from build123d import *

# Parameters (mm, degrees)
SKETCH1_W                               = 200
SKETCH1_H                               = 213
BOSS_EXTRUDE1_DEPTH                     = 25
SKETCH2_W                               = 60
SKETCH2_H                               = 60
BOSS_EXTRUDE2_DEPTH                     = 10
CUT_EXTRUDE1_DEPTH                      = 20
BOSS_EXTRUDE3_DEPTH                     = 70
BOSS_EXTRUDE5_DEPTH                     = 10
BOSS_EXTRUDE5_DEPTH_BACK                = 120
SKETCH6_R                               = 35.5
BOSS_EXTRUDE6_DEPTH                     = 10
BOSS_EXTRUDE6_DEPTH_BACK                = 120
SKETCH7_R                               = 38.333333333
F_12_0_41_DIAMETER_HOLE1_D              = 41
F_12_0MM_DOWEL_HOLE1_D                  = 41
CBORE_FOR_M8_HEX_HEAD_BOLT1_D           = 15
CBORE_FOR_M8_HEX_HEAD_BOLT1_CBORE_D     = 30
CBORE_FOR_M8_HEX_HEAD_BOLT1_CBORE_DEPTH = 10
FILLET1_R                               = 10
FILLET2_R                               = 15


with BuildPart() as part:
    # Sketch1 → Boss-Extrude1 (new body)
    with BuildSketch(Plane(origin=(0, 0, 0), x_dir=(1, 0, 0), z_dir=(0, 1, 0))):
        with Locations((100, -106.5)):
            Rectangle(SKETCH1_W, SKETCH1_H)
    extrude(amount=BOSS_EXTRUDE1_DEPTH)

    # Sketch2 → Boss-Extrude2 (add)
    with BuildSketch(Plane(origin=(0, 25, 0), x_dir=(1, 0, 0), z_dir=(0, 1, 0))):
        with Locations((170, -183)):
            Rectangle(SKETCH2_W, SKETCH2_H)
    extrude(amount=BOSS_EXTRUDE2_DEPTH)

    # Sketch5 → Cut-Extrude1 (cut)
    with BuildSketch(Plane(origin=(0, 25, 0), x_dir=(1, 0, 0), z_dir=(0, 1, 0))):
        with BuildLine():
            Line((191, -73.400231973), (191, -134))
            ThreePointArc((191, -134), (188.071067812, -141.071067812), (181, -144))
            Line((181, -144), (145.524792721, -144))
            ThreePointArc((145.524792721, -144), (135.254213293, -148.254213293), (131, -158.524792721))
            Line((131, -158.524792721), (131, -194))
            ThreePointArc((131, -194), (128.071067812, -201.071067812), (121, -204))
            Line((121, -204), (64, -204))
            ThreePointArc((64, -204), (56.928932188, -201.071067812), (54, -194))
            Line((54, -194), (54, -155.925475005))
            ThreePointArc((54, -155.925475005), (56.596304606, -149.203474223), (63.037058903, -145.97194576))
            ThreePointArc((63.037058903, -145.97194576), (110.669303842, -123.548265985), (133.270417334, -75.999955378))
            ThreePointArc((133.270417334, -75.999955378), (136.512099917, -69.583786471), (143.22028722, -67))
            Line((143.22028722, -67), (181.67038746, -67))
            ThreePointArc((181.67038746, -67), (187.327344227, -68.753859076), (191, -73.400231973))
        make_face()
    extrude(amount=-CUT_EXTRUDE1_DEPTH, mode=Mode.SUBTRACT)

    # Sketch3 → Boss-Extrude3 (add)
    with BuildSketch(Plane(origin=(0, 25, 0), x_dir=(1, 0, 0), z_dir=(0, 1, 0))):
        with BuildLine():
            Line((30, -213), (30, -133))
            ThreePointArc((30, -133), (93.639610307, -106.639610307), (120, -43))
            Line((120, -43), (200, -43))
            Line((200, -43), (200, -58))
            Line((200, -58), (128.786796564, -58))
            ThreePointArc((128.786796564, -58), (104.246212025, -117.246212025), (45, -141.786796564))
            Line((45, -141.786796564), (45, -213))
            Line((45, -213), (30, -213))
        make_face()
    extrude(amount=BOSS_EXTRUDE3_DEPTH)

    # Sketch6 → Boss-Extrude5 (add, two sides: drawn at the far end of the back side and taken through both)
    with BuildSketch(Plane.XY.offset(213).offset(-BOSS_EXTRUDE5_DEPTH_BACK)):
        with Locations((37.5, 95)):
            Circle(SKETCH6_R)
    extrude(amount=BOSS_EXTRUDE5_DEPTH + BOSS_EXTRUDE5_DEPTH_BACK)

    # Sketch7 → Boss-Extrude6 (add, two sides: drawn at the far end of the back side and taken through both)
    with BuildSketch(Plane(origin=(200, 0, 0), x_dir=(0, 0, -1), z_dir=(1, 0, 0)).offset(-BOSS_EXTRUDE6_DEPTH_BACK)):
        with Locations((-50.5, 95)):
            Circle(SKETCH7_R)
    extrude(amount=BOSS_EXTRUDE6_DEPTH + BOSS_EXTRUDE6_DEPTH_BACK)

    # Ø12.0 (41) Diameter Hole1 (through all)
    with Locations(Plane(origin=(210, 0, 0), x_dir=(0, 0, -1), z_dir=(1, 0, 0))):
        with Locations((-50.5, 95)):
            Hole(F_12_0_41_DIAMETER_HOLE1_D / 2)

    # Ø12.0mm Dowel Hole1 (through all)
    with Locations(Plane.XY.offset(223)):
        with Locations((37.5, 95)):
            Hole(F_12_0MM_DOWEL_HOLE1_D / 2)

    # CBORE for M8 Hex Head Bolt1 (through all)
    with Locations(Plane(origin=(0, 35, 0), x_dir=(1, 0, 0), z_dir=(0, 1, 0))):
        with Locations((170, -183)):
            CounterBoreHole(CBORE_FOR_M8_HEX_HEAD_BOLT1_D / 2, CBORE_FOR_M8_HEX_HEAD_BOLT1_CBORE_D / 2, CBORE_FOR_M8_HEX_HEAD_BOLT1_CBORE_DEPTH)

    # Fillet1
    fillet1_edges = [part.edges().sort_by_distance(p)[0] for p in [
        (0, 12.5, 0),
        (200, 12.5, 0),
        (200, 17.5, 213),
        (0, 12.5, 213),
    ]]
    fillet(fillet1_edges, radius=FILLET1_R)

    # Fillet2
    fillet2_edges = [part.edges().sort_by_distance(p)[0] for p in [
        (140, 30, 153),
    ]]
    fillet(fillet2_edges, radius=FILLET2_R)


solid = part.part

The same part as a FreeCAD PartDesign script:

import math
import FreeCAD as App
import Part
import Sketcher
from FreeCAD import Vector


def edges_at(feature, points):
    """Names of the edges that pass closest to the given points."""
    edges = feature.Shape.Edges
    near = lambda p: min(range(len(edges)), key=lambda i: edges[i].distToShape(Part.Vertex(*p))[0])
    return sorted({f"Edge{near(p) + 1}" for p in points})


def add_polygon(sketch, points):
    """Adds a closed chain of lines whose ends are joined by coincident constraints."""
    first, n = sketch.GeometryCount, len(points)
    for a, b in zip(points, points[1:] + points[:1]):
        sketch.addGeometry(Part.LineSegment(App.Vector(*a, 0), App.Vector(*b, 0)), False)
    for i in range(n):
        sketch.addConstraint(Sketcher.Constraint("Coincident", first + i, 2, first + (i + 1) % n, 1))

doc = App.newDocument("Part")
body = doc.addObject("PartDesign::Body", "Body")

# Sketch on XZ plane
sketch1 = body.newObject("Sketcher::SketchObject", "Sketch")
sketch1.AttachmentSupport = (doc.getObject("XZ_Plane"), [""])
sketch1.MapMode = "FlatFace"
add_polygon(sketch1, [(0, 0), (0, 213), (200, 213), (200, 0)])  # lines 0-3
sketch1.addConstraint([
    Sketcher.Constraint("Vertical", 0),
    Sketcher.Constraint("Horizontal", 1),
    Sketcher.Constraint("Vertical", 2),
    Sketcher.Constraint("Horizontal", 3),
    Sketcher.Constraint("Coincident", 3, 2, -1, 1),
    Sketcher.Constraint("DistanceX", 1, 1, 1, 2, 200.0),
    Sketcher.Constraint("DistanceY", 0, 1, 0, 2, 213.0),
])
pad1 = body.newObject("PartDesign::Pad", "Pad")
pad1.Profile = sketch1
pad1.Length = 25
pad1.Reversed = True

# Sketch on XZ plane
sketch2 = body.newObject("Sketcher::SketchObject", "Sketch001")
sketch2.AttachmentSupport = (doc.getObject("XZ_Plane"), [""])
sketch2.MapMode = "FlatFace"
sketch2.AttachmentOffset = App.Placement(Vector(0, 0, -25), App.Rotation())
add_polygon(sketch2, [(140, 153), (140, 213), (200, 213), (200, 153)])  # lines 0-3
sketch2.addConstraint([
    Sketcher.Constraint("Vertical", 0),
    Sketcher.Constraint("Horizontal", 1),
    Sketcher.Constraint("Vertical", 2),
    Sketcher.Constraint("Horizontal", 3),
    Sketcher.Constraint("Equal", 3, 0),
    Sketcher.Constraint("DistanceX", 1, 1, 1, 2, 60.0),
    Sketcher.Constraint("DistanceX", -1, 1, 0, 2, 140.0),
    Sketcher.Constraint("DistanceY", -1, 1, 0, 2, 213.0),
])
pad2 = body.newObject("PartDesign::Pad", "Pad001")
pad2.Profile = sketch2
pad2.Length = 10
pad2.Reversed = True

# Sketch on XZ plane
sketch3 = body.newObject("Sketcher::SketchObject", "Sketch002")
sketch3.AttachmentSupport = (doc.getObject("XZ_Plane"), [""])
sketch3.MapMode = "FlatFace"
sketch3.AttachmentOffset = App.Placement(Vector(0, 0, -25), App.Rotation())
sketch3.addGeometry([
    Part.LineSegment(Vector(191, 134, 0), Vector(191, 73.400232, 0)),  # 0
    Part.ArcOfCircle(Part.Circle(Vector(181.670387, 77, 0), Vector(0, 0, 1), 10), math.radians(-90), math.radians(-21.098771)),  # 1
    Part.LineSegment(Vector(181.670387, 67, 0), Vector(143.220287, 67, 0)),  # 2
    Part.ArcOfCircle(Part.Circle(Vector(143.220287, 77, 0), Vector(0, 0, 1), 10), math.radians(-174.260573), math.radians(-90)),  # 3
    Part.ArcOfCircle(Part.Circle(Vector(55.51162, 68.18455, 0), Vector(0, 0, 1), 78.150567), math.radians(5.739427), math.radians(84.474192)),  # 4
    Part.ArcOfCircle(Part.Circle(Vector(64, 155.925475, 0), Vector(0, 0, 1), 10), math.radians(180), math.radians(264.474192)),  # 5
    Part.LineSegment(Vector(54, 155.925475, 0), Vector(54, 194, 0)),  # 6
    Part.ArcOfCircle(Part.Circle(Vector(64, 194, 0), Vector(0, 0, 1), 10), math.radians(90), math.radians(180)),  # 7
    Part.LineSegment(Vector(64, 204, 0), Vector(121, 204, 0)),  # 8
    Part.ArcOfCircle(Part.Circle(Vector(121, 194, 0), Vector(0, 0, 1), 10), math.radians(0), math.radians(90)),  # 9
    Part.LineSegment(Vector(131, 194, 0), Vector(131, 158.524793, 0)),  # 10
    Part.ArcOfCircle(Part.Circle(Vector(145.524793, 158.524793, 0), Vector(0, 0, 1), 14.524793), math.radians(-180), math.radians(-90)),  # 11
    Part.LineSegment(Vector(145.524793, 144, 0), Vector(181, 144, 0)),  # 12
    Part.ArcOfCircle(Part.Circle(Vector(181, 134, 0), Vector(0, 0, 1), 10), math.radians(0), math.radians(90)),  # 13
], False)
sketch3.addConstraint([
    Sketcher.Constraint("Coincident", 0, 2, 1, 2),
    Sketcher.Constraint("Tangent", 1, 1, 2, 1),
    Sketcher.Constraint("Tangent", 2, 2, 3, 2),
    Sketcher.Constraint("Tangent", 3, 1, 4, 1),
    Sketcher.Constraint("Tangent", 4, 2, 5, 2),
    Sketcher.Constraint("Tangent", 5, 1, 6, 1),
    Sketcher.Constraint("Tangent", 6, 2, 7, 2),
    Sketcher.Constraint("Tangent", 7, 1, 8, 1),
    Sketcher.Constraint("Tangent", 8, 2, 9, 2),
    Sketcher.Constraint("Tangent", 9, 1, 10, 1),
    Sketcher.Constraint("Tangent", 10, 2, 11, 1),
    Sketcher.Constraint("Tangent", 11, 2, 12, 1),
    Sketcher.Constraint("Tangent", 12, 2, 13, 2),
    Sketcher.Constraint("Tangent", 13, 1, 0, 1),
    Sketcher.Constraint("Vertical", 0),
    Sketcher.Constraint("Horizontal", 2),
    Sketcher.Constraint("Vertical", 6),
    Sketcher.Constraint("Horizontal", 8),
    Sketcher.Constraint("Vertical", 10),
    Sketcher.Constraint("Horizontal", 12),
    Sketcher.Constraint("Equal", 1, 3),
    Sketcher.Constraint("Equal", 3, 5),
    Sketcher.Constraint("Equal", 5, 7),
    Sketcher.Constraint("Equal", 7, 9),
    Sketcher.Constraint("Equal", 9, 13),
    Sketcher.Constraint("Equal", 12, 10),
    Sketcher.Constraint("Radius", 1, 10.0),
    Sketcher.Constraint("DistanceX", 8, 1, 8, 2, 57.0),
    Sketcher.Constraint("DistanceY", -1, 1, 1, 3, 77.0),
    Sketcher.Constraint("DistanceX", -1, 1, 5, 3, 64.0),
    Sketcher.Constraint("DistanceY", -1, 1, 7, 3, 194.0),
    Sketcher.Constraint("DistanceX", -1, 1, 13, 3, 181.0),
    Sketcher.Constraint("DistanceX", 2, 2, 2, 1, 38.4501),
    Sketcher.Constraint("Radius", 4, 78.150567),
    Sketcher.Constraint("Radius", 11, 14.524793),
    Sketcher.Constraint("DistanceY", 0, 2, 0, 1, 60.599768),
    Sketcher.Constraint("DistanceY", 6, 1, 6, 2, 38.074525),
])
pocket1 = body.newObject("PartDesign::Pocket", "Pocket")
pocket1.Profile = sketch3
pocket1.Length = 20
pocket1.Reversed = True

# Sketch on XZ plane
sketch4 = body.newObject("Sketcher::SketchObject", "Sketch003")
sketch4.AttachmentSupport = (doc.getObject("XZ_Plane"), [""])
sketch4.MapMode = "FlatFace"
sketch4.AttachmentOffset = App.Placement(Vector(0, 0, -25), App.Rotation())
sketch4.addGeometry([
    Part.LineSegment(Vector(30, 133, 0), Vector(30, 213, 0)),  # 0
    Part.LineSegment(Vector(30, 213, 0), Vector(45, 213, 0)),  # 1
    Part.LineSegment(Vector(45, 213, 0), Vector(45, 141.786797, 0)),  # 2
    Part.ArcOfCircle(Part.Circle(Vector(45, 58, 0), Vector(0, 0, 1), 83.786797), math.radians(0), math.radians(90)),  # 3
    Part.LineSegment(Vector(128.786797, 58, 0), Vector(200, 58, 0)),  # 4
    Part.LineSegment(Vector(200, 58, 0), Vector(200, 43, 0)),  # 5
    Part.LineSegment(Vector(200, 43, 0), Vector(120, 43, 0)),  # 6
    Part.ArcOfCircle(Part.Circle(Vector(30, 43, 0), Vector(0, 0, 1), 90), math.radians(0), math.radians(90)),  # 7
], False)
sketch4.addConstraint([
    Sketcher.Constraint("Coincident", 0, 2, 1, 1),
    Sketcher.Constraint("Coincident", 1, 2, 2, 1),
    Sketcher.Constraint("Coincident", 2, 2, 3, 2),
    Sketcher.Constraint("Coincident", 3, 1, 4, 1),
    Sketcher.Constraint("Coincident", 4, 2, 5, 1),
    Sketcher.Constraint("Coincident", 5, 2, 6, 1),
    Sketcher.Constraint("Coincident", 6, 2, 7, 1),
    Sketcher.Constraint("Coincident", 7, 2, 0, 1),
    Sketcher.Constraint("Vertical", 0),
    Sketcher.Constraint("Horizontal", 1),
    Sketcher.Constraint("Vertical", 2),
    Sketcher.Constraint("Horizontal", 4),
    Sketcher.Constraint("Vertical", 5),
    Sketcher.Constraint("Horizontal", 6),
    Sketcher.Constraint("Horizontal", 7, 3, 5, 2),
    Sketcher.Constraint("Vertical", 7, 3, 0, 2),
    Sketcher.Constraint("Vertical", 3, 3, 1, 2),
    Sketcher.Constraint("Equal", 6, 0),
    Sketcher.Constraint("Equal", 4, 2),
    Sketcher.Constraint("Equal", 1, 5),
    Sketcher.Constraint("Radius", 7, 90.0),
    Sketcher.Constraint("DistanceX", 1, 1, 1, 2, 15.0),
    Sketcher.Constraint("DistanceX", 6, 2, 6, 1, 80.0),
    Sketcher.Constraint("DistanceX", -1, 1, 3, 3, 45.0),
    Sketcher.Constraint("DistanceY", -1, 1, 3, 3, 58.0),
    Sketcher.Constraint("Radius", 3, 83.786797),
])
pad3 = body.newObject("PartDesign::Pad", "Pad002")
pad3.Profile = sketch4
pad3.Length = 70
pad3.Reversed = True

# Sketch on XY plane
sketch5 = body.newObject("Sketcher::SketchObject", "Sketch004")
sketch5.AttachmentSupport = (doc.getObject("XY_Plane"), [""])
sketch5.MapMode = "FlatFace"
sketch5.AttachmentOffset = App.Placement(Vector(0, 0, 213), App.Rotation())
sketch5.addGeometry(Part.Circle(Vector(37.5, 95, 0), Vector(0, 0, 1), 35.5), False)
sketch5.addConstraint([
    Sketcher.Constraint("Diameter", 0, 71.0),
    Sketcher.Constraint("DistanceY", -1, 1, 0, 3, 95.0),
    Sketcher.Constraint("DistanceX", -1, 1, 0, 3, 37.5),
])
pad4 = body.newObject("PartDesign::Pad", "Pad003")
pad4.Profile = sketch5
pad4.Type = "TwoLengths"
pad4.Length = 10
pad4.Length2 = 120

# Sketch on YZ plane
sketch6 = body.newObject("Sketcher::SketchObject", "Sketch005")
sketch6.AttachmentSupport = (doc.getObject("YZ_Plane"), [""])
sketch6.MapMode = "FlatFace"
sketch6.AttachmentOffset = App.Placement(Vector(0, 0, 200), App.Rotation())
sketch6.addGeometry(Part.Circle(Vector(95, 50.5, 0), Vector(0, 0, 1), 38.333333), False)
sketch6.addConstraint([
    Sketcher.Constraint("DistanceX", -1, 1, 0, 3, 95.0),
    Sketcher.Constraint("DistanceY", -1, 1, 0, 3, 50.5),
    Sketcher.Constraint("Diameter", 0, 76.666667),
])
pad5 = body.newObject("PartDesign::Pad", "Pad004")
pad5.Profile = sketch6
pad5.Type = "TwoLengths"
pad5.Length = 10
pad5.Length2 = 120

# Sketch on YZ plane
sketch7 = body.newObject("Sketcher::SketchObject", "Sketch006")
sketch7.AttachmentSupport = (doc.getObject("YZ_Plane"), [""])
sketch7.MapMode = "FlatFace"
sketch7.AttachmentOffset = App.Placement(Vector(0, 0, 210), App.Rotation())
sketch7.addGeometry(Part.Circle(Vector(95, 50.5, 0), Vector(0, 0, 1), 20.5), False)
sketch7.addConstraint([
    Sketcher.Constraint("Diameter", 0, 41.0),
    Sketcher.Constraint("DistanceX", -1, 1, 0, 3, 95.0),
    Sketcher.Constraint("DistanceY", -1, 1, 0, 3, 50.5),
])
doc.recompute()
hole = body.newObject("PartDesign::Hole", "Hole")
hole.Profile = sketch7
hole.ThreadType = "None"
hole.Diameter = 41
hole.DepthType = "ThroughAll"

# Sketch on XY plane
sketch8 = body.newObject("Sketcher::SketchObject", "Sketch007")
sketch8.AttachmentSupport = (doc.getObject("XY_Plane"), [""])
sketch8.MapMode = "FlatFace"
sketch8.AttachmentOffset = App.Placement(Vector(0, 0, 223), App.Rotation())
sketch8.addGeometry(Part.Circle(Vector(37.5, 95, 0), Vector(0, 0, 1), 20.5), False)
sketch8.addConstraint([
    Sketcher.Constraint("Diameter", 0, 41.0),
    Sketcher.Constraint("DistanceY", -1, 1, 0, 3, 95.0),
    Sketcher.Constraint("DistanceX", -1, 1, 0, 3, 37.5),
])
doc.recompute()
hole2 = body.newObject("PartDesign::Hole", "Hole001")
hole2.Profile = sketch8
hole2.ThreadType = "None"
hole2.Diameter = 41
hole2.DepthType = "ThroughAll"

# Sketch on XZ plane
sketch9 = body.newObject("Sketcher::SketchObject", "Sketch008")
sketch9.AttachmentSupport = (doc.getObject("XZ_Plane"), [""])
sketch9.MapMode = "FlatFace"
sketch9.AttachmentOffset = App.Placement(Vector(0, 0, -35), App.Rotation())
sketch9.addGeometry(Part.Circle(Vector(170, 183, 0), Vector(0, 0, 1), 7.5), False)
sketch9.addConstraint([
    Sketcher.Constraint("Diameter", 0, 15.0),
    Sketcher.Constraint("DistanceX", -1, 1, 0, 3, 170.0),
    Sketcher.Constraint("DistanceY", -1, 1, 0, 3, 183.0),
])
doc.recompute()
hole3 = body.newObject("PartDesign::Hole", "Hole002")
hole3.Profile = sketch9
hole3.ThreadType = "None"
hole3.Diameter = 15
hole3.DepthType = "ThroughAll"
hole3.HoleCutType = "Counterbore"
hole3.HoleCutDiameter = 30
hole3.HoleCutDepth = 10
hole3.Reversed = True
doc.recompute()

fillet = body.newObject("PartDesign::Fillet", "Fillet")
fillet.Base = (hole3, edges_at(hole3, [
    (0, 12.5, 0),
    (200, 12.5, 0),
    (200, 17.5, 213),
    (0, 12.5, 213),
]))
fillet.Radius = 10
doc.recompute()

fillet2 = body.newObject("PartDesign::Fillet", "Fillet001")
fillet2.Base = (fillet, edges_at(fillet, [(140, 30, 153)]))
fillet2.Radius = 15

doc.recompute()
